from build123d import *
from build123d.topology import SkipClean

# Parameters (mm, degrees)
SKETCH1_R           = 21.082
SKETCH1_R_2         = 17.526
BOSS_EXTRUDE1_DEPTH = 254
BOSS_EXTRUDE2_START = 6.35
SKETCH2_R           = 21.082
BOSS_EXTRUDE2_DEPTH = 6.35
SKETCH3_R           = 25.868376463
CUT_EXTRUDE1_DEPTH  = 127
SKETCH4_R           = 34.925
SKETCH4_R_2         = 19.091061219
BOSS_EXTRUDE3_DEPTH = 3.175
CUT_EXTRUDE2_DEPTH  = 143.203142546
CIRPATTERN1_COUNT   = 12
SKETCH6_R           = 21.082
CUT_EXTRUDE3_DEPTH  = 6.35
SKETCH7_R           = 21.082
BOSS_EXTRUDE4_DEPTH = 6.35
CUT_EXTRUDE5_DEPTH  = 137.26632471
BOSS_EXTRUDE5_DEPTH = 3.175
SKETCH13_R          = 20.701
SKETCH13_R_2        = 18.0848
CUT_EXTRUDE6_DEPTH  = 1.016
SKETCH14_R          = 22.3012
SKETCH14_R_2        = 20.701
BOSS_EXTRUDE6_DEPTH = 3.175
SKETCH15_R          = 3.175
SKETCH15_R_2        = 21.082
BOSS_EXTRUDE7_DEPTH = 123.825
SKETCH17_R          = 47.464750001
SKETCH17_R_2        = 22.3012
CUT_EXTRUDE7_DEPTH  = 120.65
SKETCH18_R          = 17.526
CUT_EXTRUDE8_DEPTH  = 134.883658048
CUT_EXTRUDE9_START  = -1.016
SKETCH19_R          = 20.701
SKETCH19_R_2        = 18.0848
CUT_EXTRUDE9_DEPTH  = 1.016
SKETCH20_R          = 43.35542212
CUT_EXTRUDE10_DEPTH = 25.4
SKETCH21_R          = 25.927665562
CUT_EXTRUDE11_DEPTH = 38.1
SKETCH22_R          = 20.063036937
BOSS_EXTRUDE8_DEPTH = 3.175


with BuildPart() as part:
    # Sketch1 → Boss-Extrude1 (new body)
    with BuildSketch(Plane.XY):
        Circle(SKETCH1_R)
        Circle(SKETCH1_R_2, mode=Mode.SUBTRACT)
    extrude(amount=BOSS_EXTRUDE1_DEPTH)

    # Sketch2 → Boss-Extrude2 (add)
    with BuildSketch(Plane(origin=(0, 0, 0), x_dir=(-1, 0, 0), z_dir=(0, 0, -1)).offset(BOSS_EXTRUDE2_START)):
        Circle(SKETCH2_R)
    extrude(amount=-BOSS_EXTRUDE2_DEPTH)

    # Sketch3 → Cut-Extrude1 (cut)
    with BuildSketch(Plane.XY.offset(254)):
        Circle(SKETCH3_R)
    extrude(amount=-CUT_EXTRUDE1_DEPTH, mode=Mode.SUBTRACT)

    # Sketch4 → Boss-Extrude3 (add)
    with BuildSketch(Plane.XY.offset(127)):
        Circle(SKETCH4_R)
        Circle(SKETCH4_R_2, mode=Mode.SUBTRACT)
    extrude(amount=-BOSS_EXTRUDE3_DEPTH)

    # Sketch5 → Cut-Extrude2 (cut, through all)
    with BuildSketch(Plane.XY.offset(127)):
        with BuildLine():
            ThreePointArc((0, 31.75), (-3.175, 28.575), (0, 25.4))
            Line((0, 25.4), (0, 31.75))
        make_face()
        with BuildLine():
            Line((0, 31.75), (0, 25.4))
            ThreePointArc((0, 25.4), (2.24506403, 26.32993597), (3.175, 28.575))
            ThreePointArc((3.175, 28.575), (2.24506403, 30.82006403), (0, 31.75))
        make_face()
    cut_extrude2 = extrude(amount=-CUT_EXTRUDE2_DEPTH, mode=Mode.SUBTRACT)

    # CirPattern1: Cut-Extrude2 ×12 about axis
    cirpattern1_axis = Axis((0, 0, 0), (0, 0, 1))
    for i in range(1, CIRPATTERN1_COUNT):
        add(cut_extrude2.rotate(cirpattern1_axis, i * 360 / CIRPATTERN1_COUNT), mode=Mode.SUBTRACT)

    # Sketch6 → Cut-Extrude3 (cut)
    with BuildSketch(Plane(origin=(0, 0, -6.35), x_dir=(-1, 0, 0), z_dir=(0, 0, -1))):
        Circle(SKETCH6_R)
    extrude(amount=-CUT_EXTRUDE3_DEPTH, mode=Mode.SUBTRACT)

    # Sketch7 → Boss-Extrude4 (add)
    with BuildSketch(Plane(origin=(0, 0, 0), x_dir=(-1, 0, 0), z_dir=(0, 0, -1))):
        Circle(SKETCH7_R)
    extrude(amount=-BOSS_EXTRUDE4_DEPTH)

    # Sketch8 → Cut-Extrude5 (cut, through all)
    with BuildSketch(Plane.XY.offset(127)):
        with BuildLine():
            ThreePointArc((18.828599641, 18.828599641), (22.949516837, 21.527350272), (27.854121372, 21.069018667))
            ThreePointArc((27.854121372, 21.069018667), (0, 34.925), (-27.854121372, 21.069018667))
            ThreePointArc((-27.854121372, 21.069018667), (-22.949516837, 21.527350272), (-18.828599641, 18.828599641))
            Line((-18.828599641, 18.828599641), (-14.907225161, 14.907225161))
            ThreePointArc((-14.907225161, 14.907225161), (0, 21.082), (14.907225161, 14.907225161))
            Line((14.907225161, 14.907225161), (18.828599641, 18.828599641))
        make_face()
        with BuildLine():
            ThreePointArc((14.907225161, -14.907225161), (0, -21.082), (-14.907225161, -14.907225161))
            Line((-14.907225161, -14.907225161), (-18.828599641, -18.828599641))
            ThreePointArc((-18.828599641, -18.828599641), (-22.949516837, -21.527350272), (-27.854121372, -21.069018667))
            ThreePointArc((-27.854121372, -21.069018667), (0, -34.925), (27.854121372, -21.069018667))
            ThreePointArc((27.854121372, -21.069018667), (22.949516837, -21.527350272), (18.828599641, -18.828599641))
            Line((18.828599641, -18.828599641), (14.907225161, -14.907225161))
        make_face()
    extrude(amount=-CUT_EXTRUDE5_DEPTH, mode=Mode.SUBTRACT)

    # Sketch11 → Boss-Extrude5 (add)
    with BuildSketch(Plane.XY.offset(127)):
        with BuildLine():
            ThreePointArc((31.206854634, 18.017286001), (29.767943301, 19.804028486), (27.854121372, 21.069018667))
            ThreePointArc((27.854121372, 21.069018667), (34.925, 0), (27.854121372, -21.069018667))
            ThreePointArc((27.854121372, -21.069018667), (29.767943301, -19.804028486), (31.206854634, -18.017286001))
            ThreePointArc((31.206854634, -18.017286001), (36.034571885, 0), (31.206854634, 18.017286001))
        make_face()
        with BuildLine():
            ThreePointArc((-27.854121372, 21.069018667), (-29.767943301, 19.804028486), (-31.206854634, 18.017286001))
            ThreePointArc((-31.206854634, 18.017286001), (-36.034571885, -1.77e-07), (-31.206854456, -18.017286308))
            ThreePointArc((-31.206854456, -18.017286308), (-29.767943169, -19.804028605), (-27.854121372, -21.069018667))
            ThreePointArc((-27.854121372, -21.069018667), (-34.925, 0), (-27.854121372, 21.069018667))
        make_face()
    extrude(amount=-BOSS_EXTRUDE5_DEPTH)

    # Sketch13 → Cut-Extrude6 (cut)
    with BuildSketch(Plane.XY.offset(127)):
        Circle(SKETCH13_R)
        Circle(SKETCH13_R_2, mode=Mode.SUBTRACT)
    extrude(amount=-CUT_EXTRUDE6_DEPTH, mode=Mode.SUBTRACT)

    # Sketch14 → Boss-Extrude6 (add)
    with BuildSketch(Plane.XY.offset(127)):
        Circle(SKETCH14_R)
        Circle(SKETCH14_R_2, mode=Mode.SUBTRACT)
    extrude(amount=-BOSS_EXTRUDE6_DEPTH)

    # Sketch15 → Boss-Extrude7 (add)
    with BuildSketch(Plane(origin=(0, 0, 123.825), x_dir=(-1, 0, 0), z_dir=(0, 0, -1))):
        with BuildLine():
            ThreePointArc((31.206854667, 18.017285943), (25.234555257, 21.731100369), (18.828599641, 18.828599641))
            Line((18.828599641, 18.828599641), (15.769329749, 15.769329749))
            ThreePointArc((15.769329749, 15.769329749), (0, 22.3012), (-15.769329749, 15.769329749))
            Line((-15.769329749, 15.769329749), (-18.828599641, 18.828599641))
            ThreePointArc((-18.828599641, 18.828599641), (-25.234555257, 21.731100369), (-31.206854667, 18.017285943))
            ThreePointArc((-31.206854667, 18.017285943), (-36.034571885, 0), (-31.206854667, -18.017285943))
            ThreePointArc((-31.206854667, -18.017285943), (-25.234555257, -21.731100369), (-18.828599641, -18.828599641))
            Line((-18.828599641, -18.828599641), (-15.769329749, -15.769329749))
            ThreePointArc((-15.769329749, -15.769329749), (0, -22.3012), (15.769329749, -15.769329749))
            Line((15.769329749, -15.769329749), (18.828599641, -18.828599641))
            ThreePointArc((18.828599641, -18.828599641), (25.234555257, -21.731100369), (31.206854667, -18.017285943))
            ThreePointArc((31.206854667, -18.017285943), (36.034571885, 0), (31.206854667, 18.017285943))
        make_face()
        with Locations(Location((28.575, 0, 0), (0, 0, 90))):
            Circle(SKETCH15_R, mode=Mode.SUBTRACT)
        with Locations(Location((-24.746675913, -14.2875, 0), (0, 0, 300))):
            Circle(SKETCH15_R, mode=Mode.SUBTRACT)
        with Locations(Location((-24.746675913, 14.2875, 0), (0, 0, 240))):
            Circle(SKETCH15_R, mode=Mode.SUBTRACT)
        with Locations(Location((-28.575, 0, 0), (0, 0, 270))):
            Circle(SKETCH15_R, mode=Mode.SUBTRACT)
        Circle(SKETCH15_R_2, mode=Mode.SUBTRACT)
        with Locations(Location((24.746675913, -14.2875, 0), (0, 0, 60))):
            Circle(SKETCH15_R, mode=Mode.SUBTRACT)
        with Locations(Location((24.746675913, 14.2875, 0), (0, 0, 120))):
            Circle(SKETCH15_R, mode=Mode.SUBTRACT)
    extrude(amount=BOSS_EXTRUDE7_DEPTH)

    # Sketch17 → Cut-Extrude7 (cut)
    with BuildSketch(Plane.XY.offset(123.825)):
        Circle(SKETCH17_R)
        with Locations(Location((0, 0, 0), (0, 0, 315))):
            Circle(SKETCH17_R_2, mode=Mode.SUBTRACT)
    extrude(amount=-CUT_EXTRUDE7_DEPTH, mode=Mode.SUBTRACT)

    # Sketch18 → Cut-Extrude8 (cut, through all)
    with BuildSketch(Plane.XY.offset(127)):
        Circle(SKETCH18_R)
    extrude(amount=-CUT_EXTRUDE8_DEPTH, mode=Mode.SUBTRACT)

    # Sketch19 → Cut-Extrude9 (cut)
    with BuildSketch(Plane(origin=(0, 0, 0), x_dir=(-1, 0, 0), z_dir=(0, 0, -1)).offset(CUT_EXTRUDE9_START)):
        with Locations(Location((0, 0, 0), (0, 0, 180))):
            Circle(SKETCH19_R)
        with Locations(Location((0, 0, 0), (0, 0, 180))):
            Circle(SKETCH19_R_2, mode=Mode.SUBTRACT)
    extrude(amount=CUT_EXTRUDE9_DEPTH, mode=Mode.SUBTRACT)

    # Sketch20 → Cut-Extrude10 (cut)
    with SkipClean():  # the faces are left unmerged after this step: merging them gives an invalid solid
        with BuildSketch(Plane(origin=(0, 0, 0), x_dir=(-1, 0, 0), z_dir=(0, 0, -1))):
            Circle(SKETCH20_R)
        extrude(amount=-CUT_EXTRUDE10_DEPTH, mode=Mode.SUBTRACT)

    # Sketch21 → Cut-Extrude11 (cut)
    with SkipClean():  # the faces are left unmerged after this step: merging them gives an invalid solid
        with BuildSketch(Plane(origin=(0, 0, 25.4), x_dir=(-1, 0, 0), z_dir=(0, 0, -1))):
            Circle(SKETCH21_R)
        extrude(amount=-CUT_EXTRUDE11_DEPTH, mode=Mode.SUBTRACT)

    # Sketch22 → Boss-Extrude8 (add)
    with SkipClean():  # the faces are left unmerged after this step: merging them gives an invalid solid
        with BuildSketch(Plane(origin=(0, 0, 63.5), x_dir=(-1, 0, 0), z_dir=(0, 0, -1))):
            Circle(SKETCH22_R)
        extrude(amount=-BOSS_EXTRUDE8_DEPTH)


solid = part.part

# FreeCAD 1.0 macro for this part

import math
import FreeCAD as App
import Part
import Sketcher
Q = App.Units.Quantity

doc = App.newDocument("Part")
params = doc.addObject("Spreadsheet::Sheet", "Params")
for row, (alias, value) in enumerate([
    ("sketch1_diameter", "1.66 in"),
    ("sketch1_diameter2", "1.38 in"),
    ("pad1_length", "10 in"),
    ("sketch2_diameter", "1.66 in"),
    ("pad2_length", "0.25 in"),
    ("pocket1_length", "5 in"),
    ("sketch4_diameter", "2.75 in"),
    ("pad3_length", "0.125 in"),
    ("sketch5_radius", "0.125 in"),
    ("sketch6_diameter", "1.66 in"),
    ("pocket3_length", "0.25 in"),
    ("sketch7_diameter", "1.66 in"),
    ("pad4_length", "0.25 in"),
    ("sketch8_radius", "0.83 in"),
    ("sketch8_radius2", "1.375 in"),
    ("sketch9_radius", "1.375 in"),
    ("pad5_length", "0.125 in"),
    ("sketch10_diameter", "1.63 in"),
    ("sketch10_diameter2", "1.424 in"),
    ("pocket5_length", "0.04 in"),
    ("sketch11_diameter", "1.63 in"),
    ("sketch11_diameter2", "1.756 in"),
    ("pad6_length", "0.125 in"),
    ("sketch12_diameter", "0.25 in"),
    ("sketch12_diameter2", "1.66 in"),
    ("sketch12_radius", "0.878 in"),
    ("pad7_length", "4.875 in"),
    ("sketch13_diameter", "1.756 in"),
    ("pocket6_length", "4.75 in"),
    ("sketch14_diameter", "1.38 in"),
    ("sketch15_diameter", "1.63 in"),
    ("sketch15_diameter2", "1.424 in"),
    ("pocket8_length", "0.04 in"),
    ("pocket9_length", "1 in"),
    ("pocket10_length", "1.5 in"),
    ("pad8_length", "0.125 in"),
], start=1):
    params.set(f"A{row}", alias)
    params.set(f"B{row}", "=" + value)
    params.setAlias(f"B{row}", alias)

body = doc.addObject("PartDesign::Body", "Body")

# Sketch on XY plane
sketch1 = body.newObject("Sketcher::SketchObject", "Sketch")
sketch1.AttachmentSupport = (doc.getObject("XY_Plane"), [""])
sketch1.MapMode = "FlatFace"
sketch1.addGeometry([
    Part.Circle(App.Vector(0, 0, 0), App.Vector(0, 0, 1), 21.082),
    Part.Circle(App.Vector(0, 0, 0), App.Vector(0, 0, 1), 17.526),
], False)
sketch1.addConstraint([
    Sketcher.Constraint("Coincident", 0, 3, -1, 1),
    Sketcher.Constraint("Coincident", 1, 3, -1, 1),
    Sketcher.Constraint("Diameter", 0, Q("1.66 in")),
    Sketcher.Constraint("Diameter", 1, Q("1.38 in")),
])
sketch1.setExpression("Constraints[2]", "Params.sketch1_diameter")
sketch1.setExpression("Constraints[3]", "Params.sketch1_diameter2")
pad1 = body.newObject("PartDesign::Pad", "Pad")
pad1.Profile = sketch1
pad1.setExpression("Length", "Params.pad1_length")

# Sketch on XY plane
sketch2 = body.newObject("Sketcher::SketchObject", "Sketch001")
sketch2.AttachmentSupport = (doc.getObject("XY_Plane"), [""])
sketch2.MapMode = "FlatFace"
sketch2.AttachmentOffset = App.Placement(App.Vector(0, 0, -0.25 * 25.4), App.Rotation())
sketch2.addGeometry(Part.Circle(App.Vector(0, 0, 0), App.Vector(0, 0, 1), 21.082), False)
sketch2.addConstraint([
    Sketcher.Constraint("Coincident", 0, 3, -1, 1),
    Sketcher.Constraint("Diameter", 0, Q("1.66 in")),
])
sketch2.setExpression("Constraints[1]", "Params.sketch2_diameter")
pad2 = body.newObject("PartDesign::Pad", "Pad001")
pad2.Profile = sketch2
pad2.setExpression("Length", "Params.pad2_length")

# Sketch on XY plane
sketch3 = body.newObject("Sketcher::SketchObject", "Sketch002")
sketch3.AttachmentSupport = (doc.getObject("XY_Plane"), [""])
sketch3.MapMode = "FlatFace"
sketch3.AttachmentOffset = App.Placement(App.Vector(0, 0, 10 * 25.4), App.Rotation())
sketch3.addGeometry(Part.Circle(App.Vector(0, 0, 0), App.Vector(0, 0, 1), 25.868376), False)
sketch3.addConstraint([
    Sketcher.Constraint("Coincident", 0, 3, -1, 1),
    Sketcher.Constraint("Diameter", 0, 51.736753),
])
pocket1 = body.newObject("PartDesign::Pocket", "Pocket")
pocket1.Profile = sketch3
pocket1.setExpression("Length", "Params.pocket1_length")

# Sketch on XY plane
sketch4 = body.newObject("Sketcher::SketchObject", "Sketch003")
sketch4.AttachmentSupport = (doc.getObject("XY_Plane"), [""])
sketch4.MapMode = "FlatFace"
sketch4.AttachmentOffset = App.Placement(App.Vector(0, 0, 5 * 25.4), App.Rotation())
sketch4.addGeometry([
    Part.Circle(App.Vector(0, 0, 0), App.Vector(0, 0, 1), 34.925),
    Part.Circle(App.Vector(0, 0, 0), App.Vector(0, 0, 1), 19.091061),
], False)
sketch4.addConstraint([
    Sketcher.Constraint("Coincident", 0, 3, -1, 1),
    Sketcher.Constraint("Coincident", 1, 3, -1, 1),
    Sketcher.Constraint("Diameter", 0, Q("2.75 in")),
    Sketcher.Constraint("Diameter", 1, 38.182122),
])
sketch4.setExpression("Constraints[2]", "Params.sketch4_diameter")
pad3 = body.newObject("PartDesign::Pad", "Pad002")
pad3.Profile = sketch4
pad3.setExpression("Length", "Params.pad3_length")
pad3.Reversed = True

# Sketch on XY plane
sketch5 = body.newObject("Sketcher::SketchObject", "Sketch004")
sketch5.AttachmentSupport = (doc.getObject("XY_Plane"), [""])
sketch5.MapMode = "FlatFace"
sketch5.AttachmentOffset = App.Placement(App.Vector(0, 0, 5 * 25.4), App.Rotation())
sketch5.addGeometry([
    Part.ArcOfCircle(Part.Circle(App.Vector(0, 28.575, 0), App.Vector(0, 0, 1), 3.175), math.radians(90), math.radians(270)),
    Part.ArcOfCircle(Part.Circle(App.Vector(0, 28.575, 0), App.Vector(0, 0, 1), 3.175), math.radians(-90), math.radians(0)),
    Part.ArcOfCircle(Part.Circle(App.Vector(0, 28.575, 0), App.Vector(0, 0, 1), 3.175), math.radians(0), math.radians(90)),
], False)
sketch5.addConstraint([
    Sketcher.Constraint("Tangent", 0, 2, 1, 1),
    Sketcher.Constraint("Tangent", 1, 2, 2, 1),
    Sketcher.Constraint("Tangent", 2, 2, 0, 1),
    Sketcher.Constraint("PointOnObject", 0, 3, -2),
    Sketcher.Constraint("PointOnObject", 0, 2, -2),
    Sketcher.Constraint("PointOnObject", 2, 2, -2),
    Sketcher.Constraint("Horizontal", 2, 3, 1, 2),
    Sketcher.Constraint("DistanceY", -1, 1, 0, 2, Q("1 in")),
    Sketcher.Constraint("Radius", 0, Q("0.125 in")),
])
sketch5.setExpression("Constraints[8]", "Params.sketch5_radius")
pocket2 = body.newObject("PartDesign::Pocket", "Pocket001")
pocket2.Profile = sketch5
pocket2.Type = "ThroughAll"
doc.recompute()

polarpattern = body.newObject("PartDesign::PolarPattern", "PolarPattern")
polarpattern.Originals = [pocket2]
polarpattern.Axis = (doc.getObject("Z_Axis"), [""])
polarpattern.Angle = 360
polarpattern.Occurrences = 12
body.Tip = polarpattern

# Sketch on XY plane
sketch6 = body.newObject("Sketcher::SketchObject", "Sketch005")
sketch6.AttachmentSupport = (doc.getObject("XY_Plane"), [""])
sketch6.MapMode = "FlatFace"
sketch6.AttachmentOffset = App.Placement(App.Vector(0, 0, -0.25 * 25.4), App.Rotation())
sketch6.addGeometry(Part.Circle(App.Vector(0, 0, 0), App.Vector(0, 0, 1), 21.082), False)
sketch6.addConstraint([
    Sketcher.Constraint("Coincident", 0, 3, -1, 1),
    Sketcher.Constraint("Diameter", 0, Q("1.66 in")),
])
sketch6.setExpression("Constraints[1]", "Params.sketch6_diameter")
pocket3 = body.newObject("PartDesign::Pocket", "Pocket002")
pocket3.Profile = sketch6
pocket3.setExpression("Length", "Params.pocket3_length")
pocket3.Reversed = True

# Sketch on XY plane
sketch7 = body.newObject("Sketcher::SketchObject", "Sketch006")
sketch7.AttachmentSupport = (doc.getObject("XY_Plane"), [""])
sketch7.MapMode = "FlatFace"
sketch7.addGeometry(Part.Circle(App.Vector(0, 0, 0), App.Vector(0, 0, 1), 21.082), False)
sketch7.addConstraint([
    Sketcher.Constraint("Coincident", 0, 3, -1, 1),
    Sketcher.Constraint("Diameter", 0, Q("1.66 in")),
])
sketch7.setExpression("Constraints[1]", "Params.sketch7_diameter")
pad4 = body.newObject("PartDesign::Pad", "Pad003")
pad4.Profile = sketch7
pad4.setExpression("Length", "Params.pad4_length")

# Sketch on XY plane
sketch8 = body.newObject("Sketcher::SketchObject", "Sketch007")
sketch8.AttachmentSupport = (doc.getObject("XY_Plane"), [""])
sketch8.MapMode = "FlatFace"
sketch8.AttachmentOffset = App.Placement(App.Vector(0, 0, 5 * 25.4), App.Rotation())
sketch8.addGeometry([
    Part.ArcOfCircle(Part.Circle(App.Vector(24.746676, 14.2875, 0), App.Vector(0, 0, 1), 7.459572), math.radians(65.381676), math.radians(142.5)),  # 0
    Part.ArcOfCircle(Part.Circle(App.Vector(0, 0, 0), App.Vector(0, 0, 1), 34.925), math.radians(37.104072), math.radians(142.895928)),  # 1
    Part.ArcOfCircle(Part.Circle(App.Vector(-24.746676, 14.2875, 0), App.Vector(0, 0, 1), 7.459572), math.radians(37.5), math.radians(114.618324)),  # 2
    Part.LineSegment(App.Vector(-18.8286, 18.8286, 0), App.Vector(-14.907225, 14.907225, 0)),  # 3
    Part.ArcOfCircle(Part.Circle(App.Vector(0, 0, 0), App.Vector(0, 0, 1), 21.082), math.radians(45), math.radians(135)),  # 4
    Part.LineSegment(App.Vector(14.907225, 14.907225, 0), App.Vector(18.8286, 18.8286, 0)),  # 5
    Part.ArcOfCircle(Part.Circle(App.Vector(0, 0, 0), App.Vector(0, 0, 1), 21.082), math.radians(-135), math.radians(-45)),  # 6
    Part.LineSegment(App.Vector(-14.907225, -14.907225, 0), App.Vector(-18.8286, -18.8286, 0)),  # 7
    Part.ArcOfCircle(Part.Circle(App.Vector(-24.746676, -14.2875, 0), App.Vector(0, 0, 1), 7.459572), math.radians(-114.618324), math.radians(-37.5)),  # 8
    Part.ArcOfCircle(Part.Circle(App.Vector(0, 0, 0), App.Vector(0, 0, 1), 34.925), math.radians(-142.895928), math.radians(-37.104072)),  # 9
    Part.ArcOfCircle(Part.Circle(App.Vector(24.746676, -14.2875, 0), App.Vector(0, 0, 1), 7.459572), math.radians(-142.5), math.radians(-65.381676)),  # 10
    Part.LineSegment(App.Vector(18.8286, -18.8286, 0), App.Vector(14.907225, -14.907225, 0)),  # 11
], False)
sketch8.addConstraint([
    Sketcher.Constraint("Coincident", 0, 1, 1, 1),
    Sketcher.Constraint("Coincident", 1, 2, 2, 2),
    Sketcher.Constraint("Coincident", 2, 1, 3, 1),
    Sketcher.Constraint("Coincident", 3, 2, 4, 2),
    Sketcher.Constraint("Coincident", 4, 1, 5, 1),
    Sketcher.Constraint("Coincident", 5, 2, 0, 2),
    Sketcher.Constraint("Coincident", 6, 1, 7, 1),
    Sketcher.Constraint("Coincident", 7, 2, 8, 2),
    Sketcher.Constraint("Coincident", 8, 1, 9, 1),
    Sketcher.Constraint("Coincident", 9, 2, 10, 2),
    Sketcher.Constraint("Coincident", 10, 1, 11, 1),
    Sketcher.Constraint("Coincident", 11, 2, 6, 2),
    Sketcher.Constraint("Coincident", 1, 3, -1, 1),
    Sketcher.Constraint("Coincident", 4, 3, -1, 1),
    Sketcher.Constraint("Coincident", 6, 3, -1, 1),
    Sketcher.Constraint("Coincident", 9, 3, -1, 1),
    Sketcher.Constraint("Equal", 0, 2),
    Sketcher.Constraint("Equal", 4, 6),
    Sketcher.Constraint("Equal", 2, 8),
    Sketcher.Constraint("Equal", 1, 9),
    Sketcher.Constraint("Equal", 8, 10),
    Sketcher.Constraint("Symmetric", 0, 3, 8, 3, -1, 1),
    Sketcher.Constraint("Symmetric", 2, 3, 10, 3, -1, 1),
    Sketcher.Constraint("Symmetric", 0, 3, 2, 3, -2),
    Sketcher.Constraint("Perpendicular", 3, 5),
    Sketcher.Constraint("Parallel", 5, 7),
    Sketcher.Constraint("Perpendicular", 7, 11),
    Sketcher.Constraint("Horizontal", 3, 2, 4, 1),
    Sketcher.Constraint("Horizontal", 2, 1, 5, 2),
    Sketcher.Constraint("Horizontal", 7, 2, 10, 1),
    Sketcher.Constraint("Vertical", 3, 2, 6, 1),
    Sketcher.Constraint("Radius", 4, Q("0.83 in")),
    Sketcher.Constraint("Radius", 1, Q("1.375 in")),
    Sketcher.Constraint("DistanceY", -1, 1, 0, 3, Q("0.5625 in")),
    Sketcher.Constraint("Radius", 0, 7.459572),
    Sketcher.Constraint("DistanceX", 2, 1, -1, 1, 18.8286),
    Sketcher.Constraint("DistanceY", -1, 1, 2, 1, 18.8286),
])
sketch8.setExpression("Constraints[31]", "Params.sketch8_radius")
sketch8.setExpression("Constraints[32]", "Params.sketch8_radius2")
pocket4 = body.newObject("PartDesign::Pocket", "Pocket003")
pocket4.Profile = sketch8
pocket4.Type = "ThroughAll"

# Sketch on XY plane
sketch9 = body.newObject("Sketcher::SketchObject", "Sketch008")
sketch9.AttachmentSupport = (doc.getObject("XY_Plane"), [""])
sketch9.MapMode = "FlatFace"
sketch9.AttachmentOffset = App.Placement(App.Vector(0, 0, 5 * 25.4), App.Rotation())
sketch9.addGeometry([
    Part.ArcOfCircle(Part.Circle(App.Vector(24.746676, 14.2875, 0), App.Vector(0, 0, 1), 7.459572), math.radians(30.000001), math.radians(65.381676)),  # 0
    Part.ArcOfCircle(Part.Circle(App.Vector(0, 0, 0), App.Vector(0, 0, 1), 34.925), math.radians(-37.104072), math.radians(37.104072)),  # 1
    Part.ArcOfCircle(Part.Circle(App.Vector(24.746676, -14.2875, 0), App.Vector(0, 0, 1), 7.459572), math.radians(-65.381676), math.radians(-30.000001)),  # 2
    Part.ArcOfCircle(Part.Circle(App.Vector(0, 0, 0), App.Vector(0, 0, 1), 36.034572), math.radians(-30), math.radians(30)),  # 3
    Part.ArcOfCircle(Part.Circle(App.Vector(-24.746676, 14.2875, 0), App.Vector(0, 0, 1), 7.459572), math.radians(114.618324), math.radians(149.999999)),  # 4
    Part.ArcOfCircle(Part.Circle(App.Vector(0, 0, 0), App.Vector(0, 0, 1), 36.034572), math.radians(150), math.radians(210.000001)),  # 5
    Part.ArcOfCircle(Part.Circle(App.Vector(-24.746676, -14.2875, 0), App.Vector(0, 0, 1), 7.459572), math.radians(-149.999997), math.radians(-114.618324)),  # 6
    Part.ArcOfCircle(Part.Circle(App.Vector(0, 0, 0), App.Vector(0, 0, 1), 34.925), math.radians(142.895928), math.radians(217.104072)),  # 7
], False)
sketch9.addConstraint([
    Sketcher.Constraint("Coincident", 0, 2, 1, 2),
    Sketcher.Constraint("Coincident", 1, 1, 2, 1),
    Sketcher.Constraint("Tangent", 2, 2, 3, 1),
    Sketcher.Constraint("Tangent", 3, 2, 0, 1),
    Sketcher.Constraint("Tangent", 4, 2, 5, 1),
    Sketcher.Constraint("Tangent", 5, 2, 6, 1),
    Sketcher.Constraint("Coincident", 6, 2, 7, 2),
    Sketcher.Constraint("Coincident", 7, 1, 4, 1),
    Sketcher.Constraint("Coincident", 1, 3, -1, 1),
    Sketcher.Constraint("Coincident", 3, 3, -1, 1),
    Sketcher.Constraint("Coincident", 5, 3, -1, 1),
    Sketcher.Constraint("Coincident", 7, 3, -1, 1),
    Sketcher.Constraint("Equal", 0, 2),
    Sketcher.Constraint("Equal", 2, 4),
    Sketcher.Constraint("Equal", 3, 5),
    Sketcher.Constraint("Equal", 4, 6),
    Sketcher.Constraint("Equal", 1, 7),
    Sketcher.Constraint("Horizontal", 0, 3, 4, 3),
    Sketcher.Constraint("Horizontal", 2, 3, 6, 3),
    Sketcher.Constraint("Vertical", 0, 3, 2, 3),
    Sketcher.Constraint("Radius", 1, Q("1.375 in")),
    Sketcher.Constraint("DistanceY", -1, 1, 0, 3, Q("0.5625 in")),
    Sketcher.Constraint("Radius", 0, 7.459572),
    Sketcher.Constraint("Radius", 3, 36.034572),
])
sketch9.setExpression("Constraints[20]", "Params.sketch9_radius")
pad5 = body.newObject("PartDesign::Pad", "Pad004")
pad5.Profile = sketch9
pad5.setExpression("Length", "Params.pad5_length")
pad5.Reversed = True

# Sketch on XY plane
sketch10 = body.newObject("Sketcher::SketchObject", "Sketch009")
sketch10.AttachmentSupport = (doc.getObject("XY_Plane"), [""])
sketch10.MapMode = "FlatFace"
sketch10.AttachmentOffset = App.Placement(App.Vector(0, 0, 5 * 25.4), App.Rotation())
sketch10.addGeometry([
    Part.Circle(App.Vector(0, 0, 0), App.Vector(0, 0, 1), 20.701),
    Part.Circle(App.Vector(0, 0, 0), App.Vector(0, 0, 1), 18.0848),
], False)
sketch10.addConstraint([
    Sketcher.Constraint("Coincident", 0, 3, -1, 1),
    Sketcher.Constraint("Coincident", 1, 3, -1, 1),
    Sketcher.Constraint("Diameter", 0, Q("1.63 in")),
    Sketcher.Constraint("Diameter", 1, Q("1.424 in")),
])
sketch10.setExpression("Constraints[2]", "Params.sketch10_diameter")
sketch10.setExpression("Constraints[3]", "Params.sketch10_diameter2")
pocket5 = body.newObject("PartDesign::Pocket", "Pocket004")
pocket5.Profile = sketch10
pocket5.setExpression("Length", "Params.pocket5_length")

# Sketch on XY plane
sketch11 = body.newObject("Sketcher::SketchObject", "Sketch010")
sketch11.AttachmentSupport = (doc.getObject("XY_Plane"), [""])
sketch11.MapMode = "FlatFace"
sketch11.AttachmentOffset = App.Placement(App.Vector(0, 0, 5 * 25.4), App.Rotation())
sketch11.addGeometry([
    Part.Circle(App.Vector(0, 0, 0), App.Vector(0, 0, 1), 22.3012),
    Part.Circle(App.Vector(0, 0, 0), App.Vector(0, 0, 1), 20.701),
], False)
sketch11.addConstraint([
    Sketcher.Constraint("Coincident", 0, 3, -1, 1),
    Sketcher.Constraint("Coincident", 1, 3, -1, 1),
    Sketcher.Constraint("Diameter", 1, Q("1.63 in")),
    Sketcher.Constraint("Diameter", 0, Q("1.756 in")),
])
sketch11.setExpression("Constraints[2]", "Params.sketch11_diameter")
sketch11.setExpression("Constraints[3]", "Params.sketch11_diameter2")
pad6 = body.newObject("PartDesign::Pad", "Pad005")
pad6.Profile = sketch11
pad6.setExpression("Length", "Params.pad6_length")
pad6.Reversed = True

# Sketch on XY plane
sketch12 = body.newObject("Sketcher::SketchObject", "Sketch011")
sketch12.AttachmentSupport = (doc.getObject("XY_Plane"), [""])
sketch12.MapMode = "FlatFace"
sketch12.AttachmentOffset = App.Placement(App.Vector(0, 0, 4.875 * 25.4), App.Rotation())
sketch12.addGeometry([
    Part.ArcOfCircle(Part.Circle(App.Vector(-24.746676, 14.2875, 0), App.Vector(0, 0, 1), 7.459572), math.radians(37.5), math.radians(150)),  # 0
    Part.LineSegment(App.Vector(-18.8286, 18.8286, 0), App.Vector(-15.76933, 15.76933, 0)),  # 1
    Part.ArcOfCircle(Part.Circle(App.Vector(0, 0, 0), App.Vector(0, 0, 1), 22.3012), math.radians(45), math.radians(135)),  # 2
    Part.LineSegment(App.Vector(15.76933, 15.76933, 0), App.Vector(18.8286, 18.8286, 0)),  # 3
    Part.ArcOfCircle(Part.Circle(App.Vector(24.746676, 14.2875, 0), App.Vector(0, 0, 1), 7.459572), math.radians(30), math.radians(142.5)),  # 4
    Part.ArcOfCircle(Part.Circle(App.Vector(0, 0, 0), App.Vector(0, 0, 1), 36.034572), math.radians(-30), math.radians(30)),  # 5
    Part.ArcOfCircle(Part.Circle(App.Vector(24.746676, -14.2875, 0), App.Vector(0, 0, 1), 7.459572), math.radians(-142.5), math.radians(-30)),  # 6
    Part.LineSegment(App.Vector(18.8286, -18.8286, 0), App.Vector(15.76933, -15.76933, 0)),  # 7
    Part.ArcOfCircle(Part.Circle(App.Vector(0, 0, 0), App.Vector(0, 0, 1), 22.3012), math.radians(-135), math.radians(-45)),  # 8
    Part.LineSegment(App.Vector(-15.76933, -15.76933, 0), App.Vector(-18.8286, -18.8286, 0)),  # 9
    Part.ArcOfCircle(Part.Circle(App.Vector(-24.746676, -14.2875, 0), App.Vector(0, 0, 1), 7.459572), math.radians(-150), math.radians(-37.5)),  # 10
    Part.ArcOfCircle(Part.Circle(App.Vector(0, 0, 0), App.Vector(0, 0, 1), 36.034572), math.radians(150), math.radians(210)),  # 11
    Part.Circle(App.Vector(24.746676, -14.2875, 0), App.Vector(0, 0, 1), 3.175),  # 12
    Part.Circle(App.Vector(-24.746676, -14.2875, 0), App.Vector(0, 0, 1), 3.175),  # 13
    Part.Circle(App.Vector(28.575, 0, 0), App.Vector(0, 0, 1), 3.175),  # 14
    Part.Circle(App.Vector(24.746676, 14.2875, 0), App.Vector(0, 0, 1), 3.175),  # 15
    Part.Circle(App.Vector(0, 0, 0), App.Vector(0, 0, 1), 21.082),  # 16
    Part.Circle(App.Vector(-28.575, 0, 0), App.Vector(0, 0, 1), 3.175),  # 17
    Part.Circle(App.Vector(-24.746676, 14.2875, 0), App.Vector(0, 0, 1), 3.175),  # 18
], False)
sketch12.addConstraint([
    Sketcher.Constraint("Coincident", 0, 1, 1, 1),
    Sketcher.Constraint("Coincident", 1, 2, 2, 2),
    Sketcher.Constraint("Coincident", 2, 1, 3, 1),
    Sketcher.Constraint("Coincident", 3, 2, 4, 2),
    Sketcher.Constraint("Tangent", 4, 1, 5, 2),
    Sketcher.Constraint("Tangent", 5, 1, 6, 2),
    Sketcher.Constraint("Coincident", 6, 1, 7, 1),
    Sketcher.Constraint("Coincident", 7, 2, 8, 2),
    Sketcher.Constraint("Coincident", 8, 1, 9, 1),
    Sketcher.Constraint("Coincident", 9, 2, 10, 2),
    Sketcher.Constraint("Tangent", 10, 1, 11, 2),
    Sketcher.Constraint("Tangent", 11, 1, 0, 2),
    Sketcher.Constraint("Coincident", 2, 3, -1, 1),
    Sketcher.Constraint("Coincident", 5, 3, -1, 1),
    Sketcher.Constraint("Coincident", 8, 3, -1, 1),
    Sketcher.Constraint("Coincident", 11, 3, -1, 1),
    Sketcher.Constraint("Coincident", 16, 3, -1, 1),
    Sketcher.Constraint("Coincident", 12, 3, 6, 3),
    Sketcher.Constraint("Coincident", 13, 3, 10, 3),
    Sketcher.Constraint("Coincident", 15, 3, 4, 3),
    Sketcher.Constraint("Coincident", 18, 3, 0, 3),
    Sketcher.Constraint("Equal", 0, 4),
    Sketcher.Constraint("Equal", 4, 6),
    Sketcher.Constraint("Equal", 2, 8),
    Sketcher.Constraint("Equal", 6, 10),
    Sketcher.Constraint("Equal", 5, 11),
    Sketcher.Constraint("Equal", 12, 13),
    Sketcher.Constraint("Equal", 13, 14),
    Sketcher.Constraint("Equal", 14, 15),
    Sketcher.Constraint("Equal", 15, 17),
    Sketcher.Constraint("Equal", 17, 18),
    Sketcher.Constraint("Symmetric", 14, 3, 17, 3, -1, 1),
    Sketcher.Constraint("Symmetric", 0, 1, 6, 1, -1, 1),
    Sketcher.Constraint("Symmetric", 3, 2, 9, 2, -1, 1),
    Sketcher.Constraint("Symmetric", 0, 1, 3, 2, -2),
    Sketcher.Constraint("PointOnObject", 14, 3, -1),
    Sketcher.Constraint("Perpendicular", 1, 3),
    Sketcher.Constraint("Perpendicular", 3, 7),
    Sketcher.Constraint("Perpendicular", 7, 9),
    Sketcher.Constraint("Horizontal", 1, 2, 2, 1),
    Sketcher.Constraint("Diameter", 12, Q("0.25 in")),
    Sketcher.Constraint("Diameter", 16, Q("1.66 in")),
    Sketcher.Constraint("Radius", 2, Q("0.878 in")),
    Sketcher.Constraint("DistanceY", -1, 1, 0, 3, Q("0.5625 in")),
    Sketcher.Constraint("DistanceX", -1, 1, 14, 3, Q("1.125 in")),
    Sketcher.Constraint("Radius", 0, 7.459572),
    Sketcher.Constraint("Radius", 5, 36.034572),
    Sketcher.Constraint("DistanceX", 0, 1, -1, 1, 18.8286),
])
sketch12.setExpression("Constraints[40]", "Params.sketch12_diameter")
sketch12.setExpression("Constraints[41]", "Params.sketch12_diameter2")
sketch12.setExpression("Constraints[42]", "Params.sketch12_radius")
pad7 = body.newObject("PartDesign::Pad", "Pad006")
pad7.Profile = sketch12
pad7.setExpression("Length", "Params.pad7_length")
pad7.Reversed = True

# Sketch on XY plane
sketch13 = body.newObject("Sketcher::SketchObject", "Sketch012")
sketch13.AttachmentSupport = (doc.getObject("XY_Plane"), [""])
sketch13.MapMode = "FlatFace"
sketch13.AttachmentOffset = App.Placement(App.Vector(0, 0, 4.875 * 25.4), App.Rotation())
sketch13.addGeometry([
    Part.Circle(App.Vector(0, 0, 0), App.Vector(0, 0, 1), 47.46475),
    Part.Circle(App.Vector(0, 0, 0), App.Vector(0, 0, 1), 22.3012),
], False)
sketch13.addConstraint([
    Sketcher.Constraint("Coincident", 0, 3, -1, 1),
    Sketcher.Constraint("Coincident", 1, 3, -1, 1),
    Sketcher.Constraint("Diameter", 1, Q("1.756 in")),
    Sketcher.Constraint("Diameter", 0, 94.9295),
])
sketch13.setExpression("Constraints[2]", "Params.sketch13_diameter")
pocket6 = body.newObject("PartDesign::Pocket", "Pocket005")
pocket6.Profile = sketch13
pocket6.setExpression("Length", "Params.pocket6_length")

# Sketch on XY plane
sketch14 = body.newObject("Sketcher::SketchObject", "Sketch013")
sketch14.AttachmentSupport = (doc.getObject("XY_Plane"), [""])
sketch14.MapMode = "FlatFace"
sketch14.AttachmentOffset = App.Placement(App.Vector(0, 0, 5 * 25.4), App.Rotation())
sketch14.addGeometry(Part.Circle(App.Vector(0, 0, 0), App.Vector(0, 0, 1), 17.526), False)
sketch14.addConstraint([
    Sketcher.Constraint("Coincident", 0, 3, -1, 1),
    Sketcher.Constraint("Diameter", 0, Q("1.38 in")),
])
sketch14.setExpression("Constraints[1]", "Params.sketch14_diameter")
pocket7 = body.newObject("PartDesign::Pocket", "Pocket006")
pocket7.Profile = sketch14
pocket7.Type = "ThroughAll"

# Sketch on XY plane
sketch15 = body.newObject("Sketcher::SketchObject", "Sketch014")
sketch15.AttachmentSupport = (doc.getObject("XY_Plane"), [""])
sketch15.MapMode = "FlatFace"
sketch15.AttachmentOffset = App.Placement(App.Vector(0, 0, 0.04 * 25.4), App.Rotation())
sketch15.addGeometry([
    Part.Circle(App.Vector(0, 0, 0), App.Vector(0, 0, 1), 20.701),
    Part.Circle(App.Vector(0, 0, 0), App.Vector(0, 0, 1), 18.0848),
], False)
sketch15.addConstraint([
    Sketcher.Constraint("Coincident", 0, 3, -1, 1),
    Sketcher.Constraint("Coincident", 1, 3, -1, 1),
    Sketcher.Constraint("Diameter", 0, Q("1.63 in")),
    Sketcher.Constraint("Diameter", 1, Q("1.424 in")),
])
sketch15.setExpression("Constraints[2]", "Params.sketch15_diameter")
sketch15.setExpression("Constraints[3]", "Params.sketch15_diameter2")
pocket8 = body.newObject("PartDesign::Pocket", "Pocket007")
pocket8.Profile = sketch15
pocket8.setExpression("Length", "Params.pocket8_length")

# Sketch on XY plane
sketch16 = body.newObject("Sketcher::SketchObject", "Sketch015")
sketch16.AttachmentSupport = (doc.getObject("XY_Plane"), [""])
sketch16.MapMode = "FlatFace"
sketch16.addGeometry(Part.Circle(App.Vector(0, 0, 0), App.Vector(0, 0, 1), 43.355422), False)
sketch16.addConstraint([
    Sketcher.Constraint("Coincident", 0, 3, -1, 1),
    Sketcher.Constraint("Diameter", 0, 86.710844),
])
pocket9 = body.newObject("PartDesign::Pocket", "Pocket008")
pocket9.Profile = sketch16
pocket9.setExpression("Length", "Params.pocket9_length")
pocket9.Reversed = True

# Sketch on XY plane
sketch17 = body.newObject("Sketcher::SketchObject", "Sketch016")
sketch17.AttachmentSupport = (doc.getObject("XY_Plane"), [""])
sketch17.MapMode = "FlatFace"
sketch17.AttachmentOffset = App.Placement(App.Vector(0, 0, 1 * 25.4), App.Rotation())
sketch17.addGeometry(Part.Circle(App.Vector(0, 0, 0), App.Vector(0, 0, 1), 25.927666), False)
sketch17.addConstraint([
    Sketcher.Constraint("Coincident", 0, 3, -1, 1),
    Sketcher.Constraint("Diameter", 0, 51.855331),
])
pocket10 = body.newObject("PartDesign::Pocket", "Pocket009")
pocket10.Profile = sketch17
pocket10.setExpression("Length", "Params.pocket10_length")
pocket10.Reversed = True

# Sketch on XY plane
sketch18 = body.newObject("Sketcher::SketchObject", "Sketch017")
sketch18.AttachmentSupport = (doc.getObject("XY_Plane"), [""])
sketch18.MapMode = "FlatFace"
sketch18.AttachmentOffset = App.Placement(App.Vector(0, 0, 2.5 * 25.4), App.Rotation())
sketch18.addGeometry(Part.Circle(App.Vector(0, 0, 0), App.Vector(0, 0, 1), 20.063037), False)
sketch18.addConstraint([
    Sketcher.Constraint("Coincident", 0, 3, -1, 1),
    Sketcher.Constraint("Diameter", 0, 40.126074),
])
pad8 = body.newObject("PartDesign::Pad", "Pad007")
pad8.Profile = sketch18
pad8.setExpression("Length", "Params.pad8_length")

doc.recompute()
